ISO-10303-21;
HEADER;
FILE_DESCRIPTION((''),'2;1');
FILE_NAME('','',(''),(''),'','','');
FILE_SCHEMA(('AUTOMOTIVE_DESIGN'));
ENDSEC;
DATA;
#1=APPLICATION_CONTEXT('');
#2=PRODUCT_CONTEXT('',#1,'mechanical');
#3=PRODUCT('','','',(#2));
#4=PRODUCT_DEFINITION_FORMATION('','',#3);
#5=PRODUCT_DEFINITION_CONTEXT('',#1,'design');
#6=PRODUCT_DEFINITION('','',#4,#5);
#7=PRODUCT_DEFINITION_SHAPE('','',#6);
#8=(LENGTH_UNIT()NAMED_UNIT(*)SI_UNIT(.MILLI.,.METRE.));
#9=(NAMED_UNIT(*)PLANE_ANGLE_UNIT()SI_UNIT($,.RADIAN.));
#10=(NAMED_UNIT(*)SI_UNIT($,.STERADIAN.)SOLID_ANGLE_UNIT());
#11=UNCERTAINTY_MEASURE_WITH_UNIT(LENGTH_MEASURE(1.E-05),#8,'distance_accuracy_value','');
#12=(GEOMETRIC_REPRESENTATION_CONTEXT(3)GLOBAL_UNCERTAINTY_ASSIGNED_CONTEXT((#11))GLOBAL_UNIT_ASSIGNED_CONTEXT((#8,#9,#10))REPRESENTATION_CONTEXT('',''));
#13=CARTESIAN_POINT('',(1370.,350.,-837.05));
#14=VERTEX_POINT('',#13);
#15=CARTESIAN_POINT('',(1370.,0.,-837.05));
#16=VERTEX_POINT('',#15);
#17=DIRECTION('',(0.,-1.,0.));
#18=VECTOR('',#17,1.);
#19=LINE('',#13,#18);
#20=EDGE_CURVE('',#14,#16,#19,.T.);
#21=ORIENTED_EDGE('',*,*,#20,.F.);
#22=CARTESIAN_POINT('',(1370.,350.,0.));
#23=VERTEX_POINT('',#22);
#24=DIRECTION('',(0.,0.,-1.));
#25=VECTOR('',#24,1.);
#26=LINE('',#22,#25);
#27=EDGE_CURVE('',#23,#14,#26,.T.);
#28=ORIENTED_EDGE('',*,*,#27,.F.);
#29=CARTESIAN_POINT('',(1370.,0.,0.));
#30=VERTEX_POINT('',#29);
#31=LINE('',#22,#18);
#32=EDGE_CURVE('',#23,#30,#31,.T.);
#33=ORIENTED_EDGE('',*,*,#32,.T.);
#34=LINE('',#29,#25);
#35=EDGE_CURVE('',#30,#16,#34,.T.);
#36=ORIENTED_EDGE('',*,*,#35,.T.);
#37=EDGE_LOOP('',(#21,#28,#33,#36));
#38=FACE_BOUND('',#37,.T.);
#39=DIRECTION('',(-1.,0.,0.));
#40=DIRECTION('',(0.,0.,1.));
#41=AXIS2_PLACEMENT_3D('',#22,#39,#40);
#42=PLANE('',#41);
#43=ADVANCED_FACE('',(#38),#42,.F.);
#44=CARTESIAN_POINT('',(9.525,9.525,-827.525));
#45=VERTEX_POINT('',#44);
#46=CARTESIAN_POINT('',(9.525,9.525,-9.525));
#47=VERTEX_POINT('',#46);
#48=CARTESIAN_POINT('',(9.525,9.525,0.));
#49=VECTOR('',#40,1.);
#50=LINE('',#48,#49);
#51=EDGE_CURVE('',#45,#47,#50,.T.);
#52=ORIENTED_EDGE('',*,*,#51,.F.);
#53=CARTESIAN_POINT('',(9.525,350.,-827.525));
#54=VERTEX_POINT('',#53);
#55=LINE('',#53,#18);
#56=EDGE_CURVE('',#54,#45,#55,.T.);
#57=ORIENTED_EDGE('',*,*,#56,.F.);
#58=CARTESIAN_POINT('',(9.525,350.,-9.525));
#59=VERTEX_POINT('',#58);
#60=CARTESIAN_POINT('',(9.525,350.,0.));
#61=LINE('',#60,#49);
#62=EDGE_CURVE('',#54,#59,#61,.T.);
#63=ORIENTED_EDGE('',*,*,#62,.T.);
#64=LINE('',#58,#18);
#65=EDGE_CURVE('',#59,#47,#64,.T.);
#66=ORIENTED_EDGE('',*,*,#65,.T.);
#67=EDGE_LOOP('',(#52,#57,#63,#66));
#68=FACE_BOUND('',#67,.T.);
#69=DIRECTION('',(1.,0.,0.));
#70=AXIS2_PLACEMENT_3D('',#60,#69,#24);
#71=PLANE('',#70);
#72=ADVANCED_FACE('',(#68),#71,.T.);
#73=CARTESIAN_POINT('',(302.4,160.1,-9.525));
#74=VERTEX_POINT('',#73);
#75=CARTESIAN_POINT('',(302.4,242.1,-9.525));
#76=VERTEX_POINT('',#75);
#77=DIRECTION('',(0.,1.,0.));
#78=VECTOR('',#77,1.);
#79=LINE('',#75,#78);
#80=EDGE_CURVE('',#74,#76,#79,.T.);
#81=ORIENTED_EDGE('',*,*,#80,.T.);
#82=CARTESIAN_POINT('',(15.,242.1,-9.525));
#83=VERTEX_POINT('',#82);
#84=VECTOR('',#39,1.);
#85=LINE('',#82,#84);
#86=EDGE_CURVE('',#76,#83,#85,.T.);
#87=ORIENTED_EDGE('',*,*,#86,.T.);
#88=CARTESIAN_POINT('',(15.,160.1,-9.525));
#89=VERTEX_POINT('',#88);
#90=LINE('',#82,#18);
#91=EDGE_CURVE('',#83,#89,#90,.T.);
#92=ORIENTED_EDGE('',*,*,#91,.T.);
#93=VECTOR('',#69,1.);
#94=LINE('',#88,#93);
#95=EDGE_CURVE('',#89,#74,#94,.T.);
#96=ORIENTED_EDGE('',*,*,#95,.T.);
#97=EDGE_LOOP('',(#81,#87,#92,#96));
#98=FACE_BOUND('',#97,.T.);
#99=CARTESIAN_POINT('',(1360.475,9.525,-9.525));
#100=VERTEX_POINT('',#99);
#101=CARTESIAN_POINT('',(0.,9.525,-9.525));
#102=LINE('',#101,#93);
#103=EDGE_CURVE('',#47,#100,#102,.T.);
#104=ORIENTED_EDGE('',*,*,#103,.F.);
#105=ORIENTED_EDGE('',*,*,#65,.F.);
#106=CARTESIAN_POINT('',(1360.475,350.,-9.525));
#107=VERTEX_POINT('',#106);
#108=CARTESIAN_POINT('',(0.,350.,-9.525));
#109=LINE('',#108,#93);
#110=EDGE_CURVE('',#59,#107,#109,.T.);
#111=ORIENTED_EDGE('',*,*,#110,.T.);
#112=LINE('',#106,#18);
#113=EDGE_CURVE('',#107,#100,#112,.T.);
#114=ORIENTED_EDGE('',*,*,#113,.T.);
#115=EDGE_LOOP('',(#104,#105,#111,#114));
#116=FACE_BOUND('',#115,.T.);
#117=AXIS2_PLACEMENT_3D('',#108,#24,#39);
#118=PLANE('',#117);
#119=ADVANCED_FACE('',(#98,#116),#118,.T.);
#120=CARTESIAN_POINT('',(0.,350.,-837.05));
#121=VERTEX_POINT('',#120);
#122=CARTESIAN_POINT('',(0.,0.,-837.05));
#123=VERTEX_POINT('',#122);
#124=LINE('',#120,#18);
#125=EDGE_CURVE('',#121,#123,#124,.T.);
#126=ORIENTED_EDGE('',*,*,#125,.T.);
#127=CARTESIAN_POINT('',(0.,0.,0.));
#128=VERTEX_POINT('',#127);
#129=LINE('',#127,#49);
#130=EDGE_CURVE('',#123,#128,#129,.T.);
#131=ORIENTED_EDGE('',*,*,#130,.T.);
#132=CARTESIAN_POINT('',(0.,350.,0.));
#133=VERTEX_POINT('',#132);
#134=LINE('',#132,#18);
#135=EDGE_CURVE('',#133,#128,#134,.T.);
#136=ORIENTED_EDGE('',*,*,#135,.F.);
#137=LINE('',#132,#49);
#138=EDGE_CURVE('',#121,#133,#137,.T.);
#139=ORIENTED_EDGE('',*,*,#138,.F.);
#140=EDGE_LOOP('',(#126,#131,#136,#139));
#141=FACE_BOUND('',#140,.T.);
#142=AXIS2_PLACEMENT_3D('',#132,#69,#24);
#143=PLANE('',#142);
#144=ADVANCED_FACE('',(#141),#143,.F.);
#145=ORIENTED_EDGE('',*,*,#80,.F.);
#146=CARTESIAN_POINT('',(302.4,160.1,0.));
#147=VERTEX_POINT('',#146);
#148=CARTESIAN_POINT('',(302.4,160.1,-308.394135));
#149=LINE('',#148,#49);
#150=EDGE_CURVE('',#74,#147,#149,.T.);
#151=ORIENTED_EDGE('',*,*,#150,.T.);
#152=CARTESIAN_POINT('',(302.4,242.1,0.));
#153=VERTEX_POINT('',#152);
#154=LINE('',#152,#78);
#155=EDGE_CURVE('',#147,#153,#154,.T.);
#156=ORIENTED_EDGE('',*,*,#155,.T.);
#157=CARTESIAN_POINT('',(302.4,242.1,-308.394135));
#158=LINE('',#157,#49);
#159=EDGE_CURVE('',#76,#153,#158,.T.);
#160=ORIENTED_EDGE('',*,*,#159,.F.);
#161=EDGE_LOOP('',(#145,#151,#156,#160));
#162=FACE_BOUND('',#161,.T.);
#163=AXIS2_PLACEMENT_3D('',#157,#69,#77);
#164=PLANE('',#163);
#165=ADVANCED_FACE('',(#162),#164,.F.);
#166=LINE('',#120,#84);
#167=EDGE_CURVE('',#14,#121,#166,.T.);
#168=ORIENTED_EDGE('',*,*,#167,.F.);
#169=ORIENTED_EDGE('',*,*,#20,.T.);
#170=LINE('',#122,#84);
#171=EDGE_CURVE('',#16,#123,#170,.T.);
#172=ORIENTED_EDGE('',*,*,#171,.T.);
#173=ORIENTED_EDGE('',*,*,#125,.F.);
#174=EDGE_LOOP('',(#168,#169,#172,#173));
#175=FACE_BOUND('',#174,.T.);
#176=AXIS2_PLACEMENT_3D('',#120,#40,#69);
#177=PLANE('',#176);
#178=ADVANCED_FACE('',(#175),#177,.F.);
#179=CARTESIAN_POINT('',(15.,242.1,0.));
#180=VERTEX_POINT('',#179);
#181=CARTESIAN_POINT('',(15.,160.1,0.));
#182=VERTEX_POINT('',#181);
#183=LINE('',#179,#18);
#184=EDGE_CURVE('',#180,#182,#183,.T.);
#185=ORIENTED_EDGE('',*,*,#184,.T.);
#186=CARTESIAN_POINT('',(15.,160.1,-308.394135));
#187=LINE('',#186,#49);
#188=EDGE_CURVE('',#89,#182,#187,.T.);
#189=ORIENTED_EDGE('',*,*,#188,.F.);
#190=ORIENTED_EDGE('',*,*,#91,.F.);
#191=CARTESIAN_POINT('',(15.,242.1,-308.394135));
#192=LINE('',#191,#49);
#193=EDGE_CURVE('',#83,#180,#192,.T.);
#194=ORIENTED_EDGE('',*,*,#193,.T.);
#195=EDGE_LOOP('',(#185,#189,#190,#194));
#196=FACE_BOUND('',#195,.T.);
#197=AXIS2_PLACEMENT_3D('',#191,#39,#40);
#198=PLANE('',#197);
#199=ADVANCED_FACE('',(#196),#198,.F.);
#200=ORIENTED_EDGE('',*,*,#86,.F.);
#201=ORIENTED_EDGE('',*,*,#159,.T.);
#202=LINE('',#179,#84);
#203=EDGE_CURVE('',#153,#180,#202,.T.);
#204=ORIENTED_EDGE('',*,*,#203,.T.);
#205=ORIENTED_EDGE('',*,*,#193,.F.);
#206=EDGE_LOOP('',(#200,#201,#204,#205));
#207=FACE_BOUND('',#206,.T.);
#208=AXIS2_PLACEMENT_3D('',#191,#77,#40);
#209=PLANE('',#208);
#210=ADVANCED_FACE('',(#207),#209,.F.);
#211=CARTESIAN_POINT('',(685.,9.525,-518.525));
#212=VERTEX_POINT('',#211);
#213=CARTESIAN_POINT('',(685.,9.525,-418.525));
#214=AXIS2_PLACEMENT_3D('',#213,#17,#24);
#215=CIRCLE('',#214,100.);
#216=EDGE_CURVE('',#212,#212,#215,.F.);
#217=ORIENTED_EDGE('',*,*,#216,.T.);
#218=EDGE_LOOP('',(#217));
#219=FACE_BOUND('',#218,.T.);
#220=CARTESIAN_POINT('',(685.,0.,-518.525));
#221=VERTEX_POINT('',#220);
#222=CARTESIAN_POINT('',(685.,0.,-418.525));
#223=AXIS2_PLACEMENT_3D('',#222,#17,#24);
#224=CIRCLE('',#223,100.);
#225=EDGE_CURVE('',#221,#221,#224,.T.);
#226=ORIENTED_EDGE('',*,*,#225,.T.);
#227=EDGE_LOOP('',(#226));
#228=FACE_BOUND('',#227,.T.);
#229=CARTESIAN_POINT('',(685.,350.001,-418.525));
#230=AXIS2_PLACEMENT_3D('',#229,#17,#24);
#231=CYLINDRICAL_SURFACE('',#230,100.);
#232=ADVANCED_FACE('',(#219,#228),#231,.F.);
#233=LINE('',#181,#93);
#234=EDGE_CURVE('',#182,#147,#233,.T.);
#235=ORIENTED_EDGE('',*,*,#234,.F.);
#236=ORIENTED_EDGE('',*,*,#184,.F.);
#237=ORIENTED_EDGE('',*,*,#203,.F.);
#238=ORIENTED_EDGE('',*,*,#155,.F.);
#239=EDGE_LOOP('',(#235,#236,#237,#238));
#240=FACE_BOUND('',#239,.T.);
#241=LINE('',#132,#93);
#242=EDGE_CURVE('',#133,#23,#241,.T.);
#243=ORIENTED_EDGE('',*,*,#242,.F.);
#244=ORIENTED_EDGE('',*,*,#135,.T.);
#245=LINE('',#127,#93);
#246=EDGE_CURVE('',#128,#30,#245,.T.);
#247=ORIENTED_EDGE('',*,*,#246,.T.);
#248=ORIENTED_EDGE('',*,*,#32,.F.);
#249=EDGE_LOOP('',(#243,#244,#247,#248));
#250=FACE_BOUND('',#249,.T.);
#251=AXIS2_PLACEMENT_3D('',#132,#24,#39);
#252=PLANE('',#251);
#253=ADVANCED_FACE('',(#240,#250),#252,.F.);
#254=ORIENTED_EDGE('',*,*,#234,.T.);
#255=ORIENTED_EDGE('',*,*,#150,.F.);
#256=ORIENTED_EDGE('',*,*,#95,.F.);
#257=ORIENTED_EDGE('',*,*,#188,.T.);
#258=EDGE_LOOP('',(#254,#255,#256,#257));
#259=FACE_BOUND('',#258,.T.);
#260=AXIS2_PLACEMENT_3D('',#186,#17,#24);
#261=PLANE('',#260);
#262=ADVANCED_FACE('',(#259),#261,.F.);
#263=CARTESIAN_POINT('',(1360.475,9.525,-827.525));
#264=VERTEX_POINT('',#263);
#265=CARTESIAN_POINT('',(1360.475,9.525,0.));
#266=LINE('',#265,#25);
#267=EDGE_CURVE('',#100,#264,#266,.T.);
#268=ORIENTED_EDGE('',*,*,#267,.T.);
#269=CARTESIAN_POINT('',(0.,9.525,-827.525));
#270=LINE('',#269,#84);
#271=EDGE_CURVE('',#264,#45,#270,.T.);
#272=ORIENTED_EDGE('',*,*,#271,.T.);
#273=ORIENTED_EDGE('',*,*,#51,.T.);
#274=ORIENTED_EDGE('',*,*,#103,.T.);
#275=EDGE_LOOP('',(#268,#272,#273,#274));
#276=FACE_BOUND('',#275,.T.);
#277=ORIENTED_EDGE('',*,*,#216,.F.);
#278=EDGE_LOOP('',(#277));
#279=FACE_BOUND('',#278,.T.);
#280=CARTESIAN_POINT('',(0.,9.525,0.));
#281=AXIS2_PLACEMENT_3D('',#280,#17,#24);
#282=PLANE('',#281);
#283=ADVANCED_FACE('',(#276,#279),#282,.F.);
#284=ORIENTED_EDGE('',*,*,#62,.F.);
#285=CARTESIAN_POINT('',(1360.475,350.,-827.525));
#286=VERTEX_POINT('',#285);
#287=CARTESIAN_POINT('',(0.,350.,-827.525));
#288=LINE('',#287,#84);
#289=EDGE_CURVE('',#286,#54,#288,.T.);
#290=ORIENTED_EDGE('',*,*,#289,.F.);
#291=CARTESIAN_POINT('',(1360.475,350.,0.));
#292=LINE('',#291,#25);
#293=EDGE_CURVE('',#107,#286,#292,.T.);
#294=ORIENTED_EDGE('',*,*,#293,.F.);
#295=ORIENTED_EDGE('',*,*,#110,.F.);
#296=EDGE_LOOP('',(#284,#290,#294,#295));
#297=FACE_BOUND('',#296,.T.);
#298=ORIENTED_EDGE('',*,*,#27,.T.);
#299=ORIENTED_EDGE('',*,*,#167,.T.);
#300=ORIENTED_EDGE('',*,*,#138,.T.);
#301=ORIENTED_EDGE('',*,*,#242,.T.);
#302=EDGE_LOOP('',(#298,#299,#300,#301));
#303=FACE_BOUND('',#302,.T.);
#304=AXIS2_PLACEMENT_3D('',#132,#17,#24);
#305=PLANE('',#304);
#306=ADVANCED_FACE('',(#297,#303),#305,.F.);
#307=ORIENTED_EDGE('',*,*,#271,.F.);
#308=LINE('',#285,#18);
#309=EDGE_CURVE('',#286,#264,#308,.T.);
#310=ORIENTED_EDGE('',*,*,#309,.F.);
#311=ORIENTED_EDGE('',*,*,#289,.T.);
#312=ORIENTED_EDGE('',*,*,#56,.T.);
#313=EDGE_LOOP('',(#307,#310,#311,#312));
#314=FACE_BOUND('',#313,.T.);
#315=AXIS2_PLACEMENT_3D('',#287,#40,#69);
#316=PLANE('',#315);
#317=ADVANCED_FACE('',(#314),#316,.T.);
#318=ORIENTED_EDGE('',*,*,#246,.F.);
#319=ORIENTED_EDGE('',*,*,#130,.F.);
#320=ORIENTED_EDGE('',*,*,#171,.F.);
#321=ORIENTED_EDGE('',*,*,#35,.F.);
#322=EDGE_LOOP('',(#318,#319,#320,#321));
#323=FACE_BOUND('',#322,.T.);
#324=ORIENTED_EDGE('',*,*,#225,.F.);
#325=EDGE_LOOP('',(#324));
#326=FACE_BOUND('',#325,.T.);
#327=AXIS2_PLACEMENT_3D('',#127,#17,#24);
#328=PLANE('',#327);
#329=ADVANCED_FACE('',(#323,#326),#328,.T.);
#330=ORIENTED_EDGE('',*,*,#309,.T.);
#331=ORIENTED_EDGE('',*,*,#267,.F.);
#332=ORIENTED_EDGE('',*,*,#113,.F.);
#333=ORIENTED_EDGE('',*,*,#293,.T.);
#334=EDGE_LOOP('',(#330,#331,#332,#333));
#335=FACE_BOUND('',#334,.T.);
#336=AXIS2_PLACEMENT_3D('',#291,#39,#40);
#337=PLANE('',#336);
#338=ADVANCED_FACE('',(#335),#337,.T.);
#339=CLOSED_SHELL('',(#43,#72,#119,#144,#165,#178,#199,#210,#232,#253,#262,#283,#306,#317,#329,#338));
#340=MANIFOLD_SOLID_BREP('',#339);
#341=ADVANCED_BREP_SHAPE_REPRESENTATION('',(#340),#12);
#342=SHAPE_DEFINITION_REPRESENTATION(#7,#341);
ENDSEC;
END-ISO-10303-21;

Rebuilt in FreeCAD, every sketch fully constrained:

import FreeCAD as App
import Part
import Sketcher
from FreeCAD import Vector
Q = App.Units.Quantity


def faces_at(feature, points):
    """Names of the faces that lie closest to the given points."""
    faces = feature.Shape.Faces
    near = lambda p: min(range(len(faces)), key=lambda i: faces[i].distToShape(Part.Vertex(*p))[0])
    return sorted({f"Face{near(p) + 1}" for p in points})

doc = App.newDocument("Part")
params = doc.addObject("Spreadsheet::Sheet", "Params")
for row, (alias, value) in enumerate([
    ("sketch1_width", "1370 mm"),
    ("sketch1_height", "837.05 mm"),
    ("pad1_length", "350 mm"),
    ("thickness_wall", "9.525 mm"),
    ("sketch2_height", "82 mm"),
    ("sketch2_width", "287.4 mm"),
    ("pocket1_length", "9.525 mm"),
    ("sketch3_diameter", "200 mm"),
], start=1):
    params.set(f"A{row}", alias)
    params.set(f"B{row}", "=" + value)
    params.setAlias(f"B{row}", alias)

body = doc.addObject("PartDesign::Body", "Body")

sketch1 = body.newObject("Sketcher::SketchObject", "Sketch")
sketch1.AttachmentSupport = (doc.getObject("XZ_Plane"), [""])
sketch1.MapMode = "FlatFace"
sketch1.addGeometry([
    Part.LineSegment(Vector(0, -837.05, 0), Vector(0, 0, 0)),
    Part.LineSegment(Vector(0, 0, 0), Vector(1370, 0, 0)),
    Part.LineSegment(Vector(1370, 0, 0), Vector(1370, -837.05, 0)),
    Part.LineSegment(Vector(1370, -837.05, 0), Vector(0, -837.05, 0)),
], False)
sketch1.addConstraint([
    Sketcher.Constraint("Coincident", 0, 2, 1, 1),
    Sketcher.Constraint("Coincident", 1, 2, 2, 1),
    Sketcher.Constraint("Coincident", 2, 2, 3, 1),
    Sketcher.Constraint("Coincident", 3, 2, 0, 1),
    Sketcher.Constraint("Vertical", 0),
    Sketcher.Constraint("Horizontal", 1),
    Sketcher.Constraint("Vertical", 2),
    Sketcher.Constraint("Horizontal", 3),
    Sketcher.Constraint("Coincident", 0, 2, -1, 1),
    Sketcher.Constraint("DistanceX", 1, 1, 1, 2, Q("1370 mm")),
    Sketcher.Constraint("DistanceY", 0, 1, 0, 2, Q("837.05 mm")),
])
sketch1.setExpression("Constraints[9]", "Params.sketch1_width")
sketch1.setExpression("Constraints[10]", "Params.sketch1_height")
pad1 = body.newObject("PartDesign::Pad", "Pad")
pad1.Profile = sketch1
pad1.setExpression("Length", "Params.pad1_length")
pad1.Reversed = True
doc.recompute()

thickness = body.newObject("PartDesign::Thickness", "Thickness")
thickness.Base = (pad1, faces_at(pad1, [(685, 350, -418.525)]))
thickness.setExpression("Value", "Params.thickness_wall")
thickness.Reversed = True
thickness.Join = "Intersection"

sketch2 = body.newObject("Sketcher::SketchObject", "Sketch001")
sketch2.AttachmentSupport = (doc.getObject("XY_Plane"), [""])
sketch2.MapMode = "FlatFace"
sketch2.addGeometry([
    Part.LineSegment(Vector(15, 242.1, 0), Vector(15, 160.1, 0)),
    Part.LineSegment(Vector(15, 160.1, 0), Vector(302.4, 160.1, 0)),
    Part.LineSegment(Vector(302.4, 160.1, 0), Vector(302.4, 242.1, 0)),
    Part.LineSegment(Vector(302.4, 242.1, 0), Vector(15, 242.1, 0)),
], False)
sketch2.addConstraint([
    Sketcher.Constraint("Coincident", 0, 2, 1, 1),
    Sketcher.Constraint("Coincident", 1, 2, 2, 1),
    Sketcher.Constraint("Coincident", 2, 2, 3, 1),
    Sketcher.Constraint("Coincident", 3, 2, 0, 1),
    Sketcher.Constraint("Vertical", 0),
    Sketcher.Constraint("Horizontal", 1),
    Sketcher.Constraint("Vertical", 2),
    Sketcher.Constraint("Horizontal", 3),
    Sketcher.Constraint("DistanceY", 0, 2, 0, 1, Q("82 mm")),
    Sketcher.Constraint("DistanceX", 1, 1, 1, 2, Q("287.4 mm")),
    Sketcher.Constraint("DistanceX", -1, 1, 0, 2, Q("15 mm")),
    Sketcher.Constraint("DistanceY", -1, 1, 0, 2, Q("160.1 mm")),
])
sketch2.setExpression("Constraints[8]", "Params.sketch2_height")
sketch2.setExpression("Constraints[9]", "Params.sketch2_width")
pocket1 = body.newObject("PartDesign::Pocket", "Pocket")
pocket1.Profile = sketch2
pocket1.setExpression("Length", "Params.pocket1_length")

sketch3 = body.newObject("Sketcher::SketchObject", "Sketch002")
sketch3.AttachmentSupport = (doc.getObject("XZ_Plane"), [""])
sketch3.MapMode = "FlatFace"
sketch3.addGeometry(Part.Circle(Vector(685, -418.525, 0), Vector(0, 0, 1), 100), False)
sketch3.addConstraint([
    Sketcher.Constraint("Diameter", 0, Q("200 mm")),
    Sketcher.Constraint("DistanceX", -1, 1, 0, 3, Q("685 mm")),
    Sketcher.Constraint("DistanceY", 0, 3, -1, 1, Q("418.525 mm")),
])
sketch3.setExpression("Constraints[0]", "Params.sketch3_diameter")
pocket2 = body.newObject("PartDesign::Pocket", "Pocket001")
pocket2.Profile = sketch3
pocket2.Type = "UpToFirst"

doc.recompute()
